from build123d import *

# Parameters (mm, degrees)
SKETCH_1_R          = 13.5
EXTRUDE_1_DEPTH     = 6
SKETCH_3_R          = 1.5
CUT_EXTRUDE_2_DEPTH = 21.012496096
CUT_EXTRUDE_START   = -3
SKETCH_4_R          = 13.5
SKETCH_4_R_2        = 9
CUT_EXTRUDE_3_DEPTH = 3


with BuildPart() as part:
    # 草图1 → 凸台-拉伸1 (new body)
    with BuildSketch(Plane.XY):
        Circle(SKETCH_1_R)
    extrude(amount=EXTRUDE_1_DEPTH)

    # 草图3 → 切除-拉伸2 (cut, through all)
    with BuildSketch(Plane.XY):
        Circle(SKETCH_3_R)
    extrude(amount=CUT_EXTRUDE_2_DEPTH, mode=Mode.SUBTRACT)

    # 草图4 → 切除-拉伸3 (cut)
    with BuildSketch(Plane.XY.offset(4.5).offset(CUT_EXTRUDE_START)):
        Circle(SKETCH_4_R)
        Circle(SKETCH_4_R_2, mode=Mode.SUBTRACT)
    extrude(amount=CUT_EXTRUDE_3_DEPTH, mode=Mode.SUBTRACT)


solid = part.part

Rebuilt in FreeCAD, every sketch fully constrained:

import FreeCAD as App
import Part
import Sketcher

V = App.Vector
Q = App.Units.Quantity

doc = App.newDocument("Part")
body = doc.addObject("PartDesign::Body", "Body")

# Sketch on XY plane
sketch1 = doc.addObject("Sketcher::SketchObject", "Sketch")
body.addObject(sketch1)
sketch1.AttachmentSupport = (doc.XY_Plane, [""])
sketch1.MapMode = "FlatFace"
sketch1.addGeometry(Part.Circle(V(0, 0, 0), V(0, 0, 1), 14), False)
sketch1.addConstraint(Sketcher.Constraint("Coincident", 0, 3, -1, 1))
sketch1.addConstraint(Sketcher.Constraint("Diameter", 0, Q("27 mm")))
pad1 = doc.addObject("PartDesign::Pad", "Pad")
body.addObject(pad1)
pad1.Profile = sketch1
pad1.Length = 6

# Sketch on XY plane
sketch2 = doc.addObject("Sketcher::SketchObject", "Sketch001")
body.addObject(sketch2)
sketch2.AttachmentSupport = (doc.XY_Plane, [""])
sketch2.MapMode = "FlatFace"
sketch2.addGeometry(Part.Circle(V(0, 0, 0), V(0, 0, 1), 1.5), False)
sketch2.addConstraint(Sketcher.Constraint("Coincident", 0, 3, -1, 1))
sketch2.addConstraint(Sketcher.Constraint("Diameter", 0, Q("3 mm")))
pocket1 = doc.addObject("PartDesign::Pocket", "Pocket")
body.addObject(pocket1)
pocket1.Profile = sketch2
pocket1.Type = "ThroughAll"
pocket1.Reversed = True

# Sketch on XY plane
sketch3 = doc.addObject("Sketcher::SketchObject", "Sketch002")
body.addObject(sketch3)
sketch3.AttachmentSupport = (doc.XY_Plane, [""])
sketch3.MapMode = "FlatFace"
sketch3.AttachmentOffset = App.Placement(V(0, 0, 1.5), App.Rotation())
sketch3.addGeometry(Part.Circle(V(0, 0, 0), V(0, 0, 1), 14), False)
sketch3.addGeometry(Part.Circle(V(0, 0, 0), V(0, 0, 1), 9), False)
sketch3.addConstraint(Sketcher.Constraint("Coincident", 0, 3, -1, 1))
sketch3.addConstraint(Sketcher.Constraint("Coincident", 1, 3, -1, 1))
sketch3.addConstraint(Sketcher.Constraint("Diameter", 0, Q("27 mm")))
sketch3.addConstraint(Sketcher.Constraint("Diameter", 1, Q("18 mm")))
pocket2 = doc.addObject("PartDesign::Pocket", "Pocket001")
body.addObject(pocket2)
pocket2.Profile = sketch3
pocket2.Length = 3
pocket2.Reversed = True

doc.recompute()
